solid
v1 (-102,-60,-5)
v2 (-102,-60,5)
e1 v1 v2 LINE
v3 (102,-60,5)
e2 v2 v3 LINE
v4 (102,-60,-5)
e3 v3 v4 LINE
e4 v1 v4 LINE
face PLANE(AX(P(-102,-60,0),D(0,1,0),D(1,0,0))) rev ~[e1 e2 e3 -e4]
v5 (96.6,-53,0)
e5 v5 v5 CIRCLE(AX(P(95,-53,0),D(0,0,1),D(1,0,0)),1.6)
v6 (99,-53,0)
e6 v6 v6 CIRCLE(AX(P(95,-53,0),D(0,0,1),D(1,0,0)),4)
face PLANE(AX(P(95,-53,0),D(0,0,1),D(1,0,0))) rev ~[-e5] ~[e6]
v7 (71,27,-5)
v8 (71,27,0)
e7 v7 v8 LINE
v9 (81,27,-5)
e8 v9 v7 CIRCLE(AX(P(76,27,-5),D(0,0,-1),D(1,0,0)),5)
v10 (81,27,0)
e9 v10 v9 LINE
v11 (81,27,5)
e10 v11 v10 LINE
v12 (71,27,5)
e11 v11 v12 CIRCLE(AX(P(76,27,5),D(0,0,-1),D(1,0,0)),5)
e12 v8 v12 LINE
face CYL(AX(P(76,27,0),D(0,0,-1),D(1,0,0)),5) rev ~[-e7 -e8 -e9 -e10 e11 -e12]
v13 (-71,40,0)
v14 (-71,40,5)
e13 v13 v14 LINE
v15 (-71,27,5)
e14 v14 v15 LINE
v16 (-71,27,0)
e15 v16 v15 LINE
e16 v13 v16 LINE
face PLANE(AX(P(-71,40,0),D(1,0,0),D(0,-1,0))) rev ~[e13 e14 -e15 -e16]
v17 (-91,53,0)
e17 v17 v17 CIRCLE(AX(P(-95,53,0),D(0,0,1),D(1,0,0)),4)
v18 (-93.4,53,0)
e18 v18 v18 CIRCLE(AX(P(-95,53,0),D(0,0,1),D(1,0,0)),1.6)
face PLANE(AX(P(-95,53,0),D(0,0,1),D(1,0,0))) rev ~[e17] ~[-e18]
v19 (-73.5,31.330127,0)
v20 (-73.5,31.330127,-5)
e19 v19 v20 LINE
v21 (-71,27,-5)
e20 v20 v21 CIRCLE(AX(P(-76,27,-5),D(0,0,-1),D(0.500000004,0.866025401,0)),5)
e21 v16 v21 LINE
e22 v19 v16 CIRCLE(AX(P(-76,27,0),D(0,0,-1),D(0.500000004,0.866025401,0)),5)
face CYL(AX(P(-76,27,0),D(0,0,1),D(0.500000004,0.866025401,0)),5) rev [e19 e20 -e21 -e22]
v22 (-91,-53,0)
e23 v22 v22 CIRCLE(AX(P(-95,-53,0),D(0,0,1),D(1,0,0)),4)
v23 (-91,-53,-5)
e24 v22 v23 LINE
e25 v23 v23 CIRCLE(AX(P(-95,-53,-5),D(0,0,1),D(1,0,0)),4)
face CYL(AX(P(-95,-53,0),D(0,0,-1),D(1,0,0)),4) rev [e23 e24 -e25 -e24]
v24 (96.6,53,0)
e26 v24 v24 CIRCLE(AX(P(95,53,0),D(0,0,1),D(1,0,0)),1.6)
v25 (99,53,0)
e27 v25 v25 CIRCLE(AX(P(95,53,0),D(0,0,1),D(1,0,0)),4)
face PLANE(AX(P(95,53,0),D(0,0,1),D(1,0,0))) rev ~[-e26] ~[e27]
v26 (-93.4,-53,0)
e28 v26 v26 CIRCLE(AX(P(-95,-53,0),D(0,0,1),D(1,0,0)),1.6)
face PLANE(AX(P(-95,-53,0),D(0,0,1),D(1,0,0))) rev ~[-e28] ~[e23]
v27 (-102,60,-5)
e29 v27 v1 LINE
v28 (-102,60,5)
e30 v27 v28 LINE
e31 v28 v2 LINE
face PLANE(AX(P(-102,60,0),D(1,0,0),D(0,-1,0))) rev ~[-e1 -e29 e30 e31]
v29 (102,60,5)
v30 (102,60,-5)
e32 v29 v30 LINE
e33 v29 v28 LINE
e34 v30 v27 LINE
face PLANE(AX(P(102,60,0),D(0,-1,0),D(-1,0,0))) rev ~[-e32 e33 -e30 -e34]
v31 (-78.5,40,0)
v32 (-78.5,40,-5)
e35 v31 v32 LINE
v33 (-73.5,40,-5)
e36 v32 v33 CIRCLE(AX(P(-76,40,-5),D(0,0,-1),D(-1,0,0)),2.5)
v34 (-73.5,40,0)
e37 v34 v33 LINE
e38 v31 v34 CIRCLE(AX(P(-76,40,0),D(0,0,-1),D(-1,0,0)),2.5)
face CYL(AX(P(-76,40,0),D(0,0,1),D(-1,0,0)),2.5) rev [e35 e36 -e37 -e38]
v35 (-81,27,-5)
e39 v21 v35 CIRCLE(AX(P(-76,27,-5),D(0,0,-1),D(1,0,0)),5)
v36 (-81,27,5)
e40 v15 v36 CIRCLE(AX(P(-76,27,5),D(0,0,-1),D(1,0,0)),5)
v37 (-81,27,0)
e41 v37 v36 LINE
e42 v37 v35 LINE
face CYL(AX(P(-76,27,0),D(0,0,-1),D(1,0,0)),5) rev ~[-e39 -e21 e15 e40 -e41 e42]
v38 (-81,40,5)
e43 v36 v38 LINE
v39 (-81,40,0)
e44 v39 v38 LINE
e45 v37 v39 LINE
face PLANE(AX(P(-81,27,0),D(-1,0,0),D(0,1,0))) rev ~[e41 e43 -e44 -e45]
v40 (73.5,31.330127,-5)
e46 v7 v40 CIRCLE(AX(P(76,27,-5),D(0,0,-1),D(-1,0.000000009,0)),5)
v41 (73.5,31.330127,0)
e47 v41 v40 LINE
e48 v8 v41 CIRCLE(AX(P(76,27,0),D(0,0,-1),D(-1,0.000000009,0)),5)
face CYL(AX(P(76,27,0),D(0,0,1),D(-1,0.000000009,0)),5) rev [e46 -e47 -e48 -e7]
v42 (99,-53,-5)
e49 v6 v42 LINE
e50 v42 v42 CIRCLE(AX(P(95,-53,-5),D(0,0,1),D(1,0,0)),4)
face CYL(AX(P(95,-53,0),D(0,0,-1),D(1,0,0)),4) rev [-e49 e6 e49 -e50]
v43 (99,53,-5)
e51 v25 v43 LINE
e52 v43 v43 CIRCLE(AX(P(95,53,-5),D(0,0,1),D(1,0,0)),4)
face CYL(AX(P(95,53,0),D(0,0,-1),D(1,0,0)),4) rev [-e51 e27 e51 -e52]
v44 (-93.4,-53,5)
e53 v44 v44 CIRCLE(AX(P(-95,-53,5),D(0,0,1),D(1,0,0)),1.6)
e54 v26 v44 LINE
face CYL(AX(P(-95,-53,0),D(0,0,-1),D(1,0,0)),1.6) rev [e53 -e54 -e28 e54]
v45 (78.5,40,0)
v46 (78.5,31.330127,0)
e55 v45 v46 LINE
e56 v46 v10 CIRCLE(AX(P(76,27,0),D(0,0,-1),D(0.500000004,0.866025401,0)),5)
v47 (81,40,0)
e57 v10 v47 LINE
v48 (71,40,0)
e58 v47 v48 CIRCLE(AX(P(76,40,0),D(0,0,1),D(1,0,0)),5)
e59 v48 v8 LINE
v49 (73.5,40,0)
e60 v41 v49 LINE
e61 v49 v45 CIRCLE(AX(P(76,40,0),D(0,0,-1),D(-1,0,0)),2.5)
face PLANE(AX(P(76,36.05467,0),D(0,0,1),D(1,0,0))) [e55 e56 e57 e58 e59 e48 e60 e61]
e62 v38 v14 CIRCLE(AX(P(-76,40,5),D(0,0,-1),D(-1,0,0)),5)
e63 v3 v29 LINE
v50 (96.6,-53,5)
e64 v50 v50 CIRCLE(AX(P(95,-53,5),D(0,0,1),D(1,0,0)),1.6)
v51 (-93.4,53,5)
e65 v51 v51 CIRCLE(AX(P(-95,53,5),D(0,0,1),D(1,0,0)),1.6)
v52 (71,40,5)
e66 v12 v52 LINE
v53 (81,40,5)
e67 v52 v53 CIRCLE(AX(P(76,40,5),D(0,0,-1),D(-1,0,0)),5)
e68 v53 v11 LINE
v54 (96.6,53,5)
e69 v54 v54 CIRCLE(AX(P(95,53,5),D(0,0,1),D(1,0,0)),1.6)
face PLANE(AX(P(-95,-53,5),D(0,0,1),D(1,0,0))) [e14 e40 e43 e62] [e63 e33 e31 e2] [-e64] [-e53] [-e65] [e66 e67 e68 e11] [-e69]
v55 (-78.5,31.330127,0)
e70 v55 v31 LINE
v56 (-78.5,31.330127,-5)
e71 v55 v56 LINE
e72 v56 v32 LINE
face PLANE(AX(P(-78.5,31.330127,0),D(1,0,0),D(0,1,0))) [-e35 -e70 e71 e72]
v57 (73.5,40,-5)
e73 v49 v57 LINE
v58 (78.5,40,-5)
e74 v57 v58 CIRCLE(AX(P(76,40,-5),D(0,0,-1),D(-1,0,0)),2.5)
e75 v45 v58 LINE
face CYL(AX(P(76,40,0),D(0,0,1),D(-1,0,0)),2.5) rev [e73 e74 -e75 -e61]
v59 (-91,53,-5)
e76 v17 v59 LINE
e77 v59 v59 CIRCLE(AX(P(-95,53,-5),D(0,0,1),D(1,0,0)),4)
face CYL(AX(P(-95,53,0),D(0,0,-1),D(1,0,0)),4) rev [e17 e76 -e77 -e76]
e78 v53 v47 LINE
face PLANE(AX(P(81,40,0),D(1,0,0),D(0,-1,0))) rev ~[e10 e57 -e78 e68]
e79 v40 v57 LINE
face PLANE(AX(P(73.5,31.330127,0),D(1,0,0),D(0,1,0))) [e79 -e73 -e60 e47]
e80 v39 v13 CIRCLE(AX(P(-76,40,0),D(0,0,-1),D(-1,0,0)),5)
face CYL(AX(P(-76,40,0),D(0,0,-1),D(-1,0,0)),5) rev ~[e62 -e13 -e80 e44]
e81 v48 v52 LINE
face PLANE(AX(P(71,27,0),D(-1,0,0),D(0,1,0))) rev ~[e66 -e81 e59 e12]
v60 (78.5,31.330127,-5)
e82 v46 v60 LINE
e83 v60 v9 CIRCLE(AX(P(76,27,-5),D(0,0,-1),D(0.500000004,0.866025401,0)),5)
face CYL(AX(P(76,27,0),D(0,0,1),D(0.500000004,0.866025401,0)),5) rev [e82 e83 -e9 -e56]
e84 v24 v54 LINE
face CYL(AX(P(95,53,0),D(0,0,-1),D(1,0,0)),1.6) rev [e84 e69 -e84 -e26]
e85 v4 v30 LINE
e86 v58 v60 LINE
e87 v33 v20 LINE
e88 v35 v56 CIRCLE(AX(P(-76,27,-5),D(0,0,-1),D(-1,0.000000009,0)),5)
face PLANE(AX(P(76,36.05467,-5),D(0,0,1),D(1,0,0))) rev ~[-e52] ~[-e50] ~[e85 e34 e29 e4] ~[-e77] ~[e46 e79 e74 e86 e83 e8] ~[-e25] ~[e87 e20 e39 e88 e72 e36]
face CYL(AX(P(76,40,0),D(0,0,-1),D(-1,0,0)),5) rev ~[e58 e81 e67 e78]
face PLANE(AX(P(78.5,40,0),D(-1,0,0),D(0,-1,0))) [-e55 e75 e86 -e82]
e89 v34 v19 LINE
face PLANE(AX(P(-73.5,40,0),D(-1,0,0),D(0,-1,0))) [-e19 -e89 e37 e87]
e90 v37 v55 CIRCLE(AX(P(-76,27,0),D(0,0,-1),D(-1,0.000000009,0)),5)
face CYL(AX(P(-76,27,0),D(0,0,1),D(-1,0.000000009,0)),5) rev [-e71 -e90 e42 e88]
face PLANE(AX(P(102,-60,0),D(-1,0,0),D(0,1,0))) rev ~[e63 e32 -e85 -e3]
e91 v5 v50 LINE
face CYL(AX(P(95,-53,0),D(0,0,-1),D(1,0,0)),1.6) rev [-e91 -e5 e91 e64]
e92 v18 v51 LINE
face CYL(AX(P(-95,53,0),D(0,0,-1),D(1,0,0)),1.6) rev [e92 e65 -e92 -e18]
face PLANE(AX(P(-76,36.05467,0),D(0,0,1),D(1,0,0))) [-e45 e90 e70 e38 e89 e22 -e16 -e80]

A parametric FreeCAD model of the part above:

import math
import FreeCAD as App
import Part
import Sketcher
Q = App.Units.Quantity

doc = App.newDocument("Part")
body = doc.addObject("PartDesign::Body", "Body")

sketch1 = doc.addObject("Sketcher::SketchObject", "Sketch")
body.addObject(sketch1)
sketch1.AttachmentSupport = (doc.XY_Plane, [""])
sketch1.MapMode = "FlatFace"
sketch1.addGeometry([
    Part.LineSegment(App.Vector(102, 60, 0), App.Vector(-102, 60, 0)),
    Part.LineSegment(App.Vector(-102, 60, 0), App.Vector(-102, -60, 0)),
    Part.LineSegment(App.Vector(-102, -60, 0), App.Vector(102, -60, 0)),
    Part.LineSegment(App.Vector(102, -60, 0), App.Vector(102, 60, 0)),
    Part.Circle(App.Vector(-95, -53, 0), App.Vector(0, 0, 1), 4),
    Part.Circle(App.Vector(95, -53, 0), App.Vector(0, 0, 1), 4),
    Part.LineSegment(App.Vector(-81, 27, 0), App.Vector(-81, 40, 0)),
    Part.ArcOfCircle(Part.Circle(App.Vector(-76, 40, 0), App.Vector(0, 0, 1), 5), math.radians(0), math.radians(180)),
    Part.LineSegment(App.Vector(-71, 40, 0), App.Vector(-71, 27, 0)),
    Part.ArcOfCircle(Part.Circle(App.Vector(-76, 27, 0), App.Vector(0, 0, 1), 5), math.radians(180), math.radians(360)),
    Part.Circle(App.Vector(-95, 53, 0), App.Vector(0, 0, 1), 4),
    Part.ArcOfCircle(Part.Circle(App.Vector(76, 27, 0), App.Vector(0, 0, 1), 5), math.radians(180), math.radians(360)),
    Part.LineSegment(App.Vector(71, 27, 0), App.Vector(71, 40, 0)),
    Part.ArcOfCircle(Part.Circle(App.Vector(76, 40, 0), App.Vector(0, 0, 1), 5), math.radians(0), math.radians(180)),
    Part.LineSegment(App.Vector(81, 40, 0), App.Vector(81, 27, 0)),
    Part.Circle(App.Vector(95, 53, 0), App.Vector(0, 0, 1), 4),
], False)
sketch1.addConstraint([
    Sketcher.Constraint("Coincident", 0, 2, 1, 1),
    Sketcher.Constraint("Coincident", 1, 2, 2, 1),
    Sketcher.Constraint("Coincident", 2, 2, 3, 1),
    Sketcher.Constraint("Coincident", 3, 2, 0, 1),
    Sketcher.Constraint("Tangent", 6, 2, 7, 2),
    Sketcher.Constraint("Tangent", 7, 1, 8, 1),
    Sketcher.Constraint("Tangent", 8, 2, 9, 2),
    Sketcher.Constraint("Tangent", 9, 1, 6, 1),
    Sketcher.Constraint("Tangent", 11, 1, 12, 1),
    Sketcher.Constraint("Tangent", 12, 2, 13, 2),
    Sketcher.Constraint("Tangent", 13, 1, 14, 1),
    Sketcher.Constraint("Tangent", 14, 2, 11, 2),
    Sketcher.Constraint("Horizontal", 0),
    Sketcher.Constraint("Vertical", 1),
    Sketcher.Constraint("Horizontal", 2),
    Sketcher.Constraint("Vertical", 3),
    Sketcher.Constraint("Vertical", 6),
    Sketcher.Constraint("Vertical", 8),
    Sketcher.Constraint("Vertical", 12),
    Sketcher.Constraint("Vertical", 14),
    Sketcher.Constraint("Equal", 4, 5),
    Sketcher.Constraint("Equal", 5, 10),
    Sketcher.Constraint("Equal", 9, 11),
    Sketcher.Constraint("Equal", 10, 15),
    Sketcher.Constraint("Symmetric", 5, 3, 10, 3, -1, 1),
    Sketcher.Constraint("Symmetric", 4, 3, 15, 3, -1, 1),
    Sketcher.Constraint("Symmetric", 0, 2, 2, 2, -1, 1),
    Sketcher.Constraint("Symmetric", 4, 3, 5, 3, -2),
    Sketcher.Constraint("Symmetric", 9, 3, 11, 3, -2),
    Sketcher.Constraint("Horizontal", 7, 3, 13, 3),
    Sketcher.Constraint("Diameter", 4, Q("8 mm")),
    Sketcher.Constraint("Radius", 7, Q("5 mm")),
    Sketcher.Constraint("DistanceX", 0, 2, 0, 1, Q("204 mm")),
    Sketcher.Constraint("DistanceY", 1, 2, 1, 1, Q("120 mm")),
    Sketcher.Constraint("DistanceY", 6, 1, 6, 2, Q("13 mm")),
    Sketcher.Constraint("DistanceX", 4, 3, -1, 1, Q("95 mm")),
    Sketcher.Constraint("DistanceY", 4, 3, -1, 1, Q("53 mm")),
    Sketcher.Constraint("DistanceX", 7, 3, -1, 1, Q("76 mm")),
    Sketcher.Constraint("DistanceY", -1, 1, 7, 3, Q("40 mm")),
])
pad1 = doc.addObject("PartDesign::Pad", "Pad")
body.addObject(pad1)
pad1.Profile = sketch1
pad1.Length = 5
pad1.Reversed = True

sketch2 = doc.addObject("Sketcher::SketchObject", "Sketch001")
body.addObject(sketch2)
sketch2.AttachmentSupport = (doc.XY_Plane, [""])
sketch2.MapMode = "FlatFace"
sketch2.addGeometry([
    Part.LineSegment(App.Vector(-71, 27, 0), App.Vector(-71, 40, 0)),
    Part.ArcOfCircle(Part.Circle(App.Vector(-76, 40, 0), App.Vector(0, 0, 1), 5), math.radians(0), math.radians(180)),
    Part.LineSegment(App.Vector(-81, 40, 0), App.Vector(-81, 27, 0)),
    Part.ArcOfCircle(Part.Circle(App.Vector(-76, 27, 0), App.Vector(0, 0, 1), 5), math.radians(120), math.radians(180)),
    Part.LineSegment(App.Vector(-78.5, 31.3, 0), App.Vector(-78.5, 40, 0)),
    Part.ArcOfCircle(Part.Circle(App.Vector(-76, 40, 0), App.Vector(0, 0, 1), 2.5), math.radians(0), math.radians(180)),
    Part.LineSegment(App.Vector(-73.5, 40, 0), App.Vector(-73.5, 31.3, 0)),
    Part.ArcOfCircle(Part.Circle(App.Vector(-76, 27, 0), App.Vector(0, 0, 1), 5), math.radians(0), math.radians(60)),
], False)
sketch2.addConstraint([
    Sketcher.Constraint("Tangent", 0, 2, 1, 1),
    Sketcher.Constraint("Tangent", 1, 2, 2, 1),
    Sketcher.Constraint("Tangent", 2, 2, 3, 2),
    Sketcher.Constraint("Coincident", 3, 1, 4, 1),
    Sketcher.Constraint("Tangent", 4, 2, 5, 2),
    Sketcher.Constraint("Tangent", 5, 1, 6, 1),
    Sketcher.Constraint("Coincident", 6, 2, 7, 2),
    Sketcher.Constraint("Tangent", 7, 1, 0, 1),
    Sketcher.Constraint("Vertical", 0),
    Sketcher.Constraint("Vertical", 2),
    Sketcher.Constraint("Vertical", 4),
    Sketcher.Constraint("Vertical", 6),
    Sketcher.Constraint("Coincident", 5, 3, 1, 3),
    Sketcher.Constraint("Coincident", 7, 3, 3, 3),
    Sketcher.Constraint("Equal", 1, 3),
    Sketcher.Constraint("Radius", 1, Q("5 mm")),
    Sketcher.Constraint("Radius", 5, Q("2.5 mm")),
    Sketcher.Constraint("DistanceY", 0, 1, 0, 2, Q("13 mm")),
    Sketcher.Constraint("DistanceX", 1, 3, -1, 1, Q("76 mm")),
    Sketcher.Constraint("DistanceY", -1, 1, 1, 3, Q("40 mm")),
])
pad2 = doc.addObject("PartDesign::Pad", "Pad001")
body.addObject(pad2)
pad2.Profile = sketch2
pad2.Length = 5
pad2.Reversed = True

sketch3 = doc.addObject("Sketcher::SketchObject", "Sketch002")
body.addObject(sketch3)
sketch3.AttachmentSupport = (doc.XY_Plane, [""])
sketch3.MapMode = "FlatFace"
sketch3.addGeometry([
    Part.LineSegment(App.Vector(102, 60, 0), App.Vector(-102, 60, 0)),
    Part.LineSegment(App.Vector(-102, 60, 0), App.Vector(-102, -60, 0)),
    Part.LineSegment(App.Vector(-102, -60, 0), App.Vector(102, -60, 0)),
    Part.LineSegment(App.Vector(102, -60, 0), App.Vector(102, 60, 0)),
    Part.Circle(App.Vector(-95, -53, 0), App.Vector(0, 0, 1), 4),
    Part.Circle(App.Vector(95, -53, 0), App.Vector(0, 0, 1), 4),
    Part.LineSegment(App.Vector(-81, 27, 0), App.Vector(-81, 40, 0)),
    Part.ArcOfCircle(Part.Circle(App.Vector(-76, 40, 0), App.Vector(0, 0, 1), 5), math.radians(0), math.radians(180)),
    Part.LineSegment(App.Vector(-71, 40, 0), App.Vector(-71, 27, 0)),
    Part.ArcOfCircle(Part.Circle(App.Vector(-76, 27, 0), App.Vector(0, 0, 1), 5), math.radians(180), math.radians(360)),
    Part.Circle(App.Vector(-95, 53, 0), App.Vector(0, 0, 1), 4),
    Part.ArcOfCircle(Part.Circle(App.Vector(76, 27, 0), App.Vector(0, 0, 1), 5), math.radians(180), math.radians(360)),
    Part.LineSegment(App.Vector(71, 27, 0), App.Vector(71, 40, 0)),
    Part.ArcOfCircle(Part.Circle(App.Vector(76, 40, 0), App.Vector(0, 0, 1), 5), math.radians(0), math.radians(180)),
    Part.LineSegment(App.Vector(81, 40, 0), App.Vector(81, 27, 0)),
    Part.Circle(App.Vector(95, 53, 0), App.Vector(0, 0, 1), 4),
], False)
sketch3.addConstraint([
    Sketcher.Constraint("Coincident", 0, 2, 1, 1),
    Sketcher.Constraint("Coincident", 1, 2, 2, 1),
    Sketcher.Constraint("Coincident", 2, 2, 3, 1),
    Sketcher.Constraint("Coincident", 3, 2, 0, 1),
    Sketcher.Constraint("Tangent", 6, 2, 7, 2),
    Sketcher.Constraint("Tangent", 7, 1, 8, 1),
    Sketcher.Constraint("Tangent", 8, 2, 9, 2),
    Sketcher.Constraint("Tangent", 9, 1, 6, 1),
    Sketcher.Constraint("Tangent", 11, 1, 12, 1),
    Sketcher.Constraint("Tangent", 12, 2, 13, 2),
    Sketcher.Constraint("Tangent", 13, 1, 14, 1),
    Sketcher.Constraint("Tangent", 14, 2, 11, 2),
    Sketcher.Constraint("Horizontal", 0),
    Sketcher.Constraint("Vertical", 1),
    Sketcher.Constraint("Horizontal", 2),
    Sketcher.Constraint("Vertical", 3),
    Sketcher.Constraint("Vertical", 6),
    Sketcher.Constraint("Vertical", 8),
    Sketcher.Constraint("Vertical", 12),
    Sketcher.Constraint("Vertical", 14),
    Sketcher.Constraint("Equal", 4, 5),
    Sketcher.Constraint("Equal", 5, 10),
    Sketcher.Constraint("Equal", 9, 11),
    Sketcher.Constraint("Equal", 10, 15),
    Sketcher.Constraint("Symmetric", 5, 3, 10, 3, -1, 1),
    Sketcher.Constraint("Symmetric", 4, 3, 15, 3, -1, 1),
    Sketcher.Constraint("Symmetric", 0, 2, 2, 2, -1, 1),
    Sketcher.Constraint("Symmetric", 4, 3, 5, 3, -2),
    Sketcher.Constraint("Symmetric", 9, 3, 11, 3, -2),
    Sketcher.Constraint("Horizontal", 7, 3, 13, 3),
    Sketcher.Constraint("Diameter", 4, Q("8 mm")),
    Sketcher.Constraint("Radius", 7, Q("5 mm")),
    Sketcher.Constraint("DistanceX", 0, 2, 0, 1, Q("204 mm")),
    Sketcher.Constraint("DistanceY", 1, 2, 1, 1, Q("120 mm")),
    Sketcher.Constraint("DistanceY", 6, 1, 6, 2, Q("13 mm")),
    Sketcher.Constraint("DistanceX", 4, 3, -1, 1, Q("95 mm")),
    Sketcher.Constraint("DistanceY", 4, 3, -1, 1, Q("53 mm")),
    Sketcher.Constraint("DistanceX", 7, 3, -1, 1, Q("76 mm")),
    Sketcher.Constraint("DistanceY", -1, 1, 7, 3, Q("40 mm")),
])
pad3 = doc.addObject("PartDesign::Pad", "Pad002")
body.addObject(pad3)
pad3.Profile = sketch3
pad3.Length = 5

sketch4 = doc.addObject("Sketcher::SketchObject", "Sketch003")
body.addObject(sketch4)
sketch4.AttachmentSupport = (doc.XY_Plane, [""])
sketch4.MapMode = "FlatFace"
sketch4.addGeometry([
    Part.Circle(App.Vector(95, -53, 0), App.Vector(0, 0, 1), 4),
    Part.Circle(App.Vector(95, -53, 0), App.Vector(0, 0, 1), 1.6),
], False)
sketch4.addConstraint([
    Sketcher.Constraint("Coincident", 1, 3, 0, 3),
    Sketcher.Constraint("Diameter", 0, Q("8 mm")),
    Sketcher.Constraint("Diameter", 1, Q("3.2 mm")),
    Sketcher.Constraint("DistanceX", -1, 1, 0, 3, Q("95 mm")),
    Sketcher.Constraint("DistanceY", 0, 3, -1, 1, Q("53 mm")),
])
pad4 = doc.addObject("PartDesign::Pad", "Pad003")
body.addObject(pad4)
pad4.Profile = sketch4
pad4.Length = 5

sketch5 = doc.addObject("Sketcher::SketchObject", "Sketch004")
body.addObject(sketch5)
sketch5.AttachmentSupport = (doc.XY_Plane, [""])
sketch5.MapMode = "FlatFace"
sketch5.addGeometry([
    Part.ArcOfCircle(Part.Circle(App.Vector(76, 40, 0), App.Vector(0, 0, 1), 5), math.radians(0), math.radians(180)),
    Part.LineSegment(App.Vector(71, 40, 0), App.Vector(71, 27, 0)),
    Part.ArcOfCircle(Part.Circle(App.Vector(76, 27, 0), App.Vector(0, 0, 1), 5), math.radians(120), math.radians(180)),
    Part.LineSegment(App.Vector(73.5, 31.3, 0), App.Vector(73.5, 40, 0)),
    Part.ArcOfCircle(Part.Circle(App.Vector(76, 40, 0), App.Vector(0, 0, 1), 2.5), math.radians(0), math.radians(180)),
    Part.LineSegment(App.Vector(78.5, 40, 0), App.Vector(78.5, 31.3, 0)),
    Part.ArcOfCircle(Part.Circle(App.Vector(76, 27, 0), App.Vector(0, 0, 1), 5), math.radians(0), math.radians(60)),
    Part.LineSegment(App.Vector(81, 27, 0), App.Vector(81, 40, 0)),
], False)
sketch5.addConstraint([
    Sketcher.Constraint("Tangent", 0, 2, 1, 1),
    Sketcher.Constraint("Tangent", 1, 2, 2, 2),
    Sketcher.Constraint("Coincident", 2, 1, 3, 1),
    Sketcher.Constraint("Tangent", 3, 2, 4, 2),
    Sketcher.Constraint("Tangent", 4, 1, 5, 1),
    Sketcher.Constraint("Coincident", 5, 2, 6, 2),
    Sketcher.Constraint("Tangent", 6, 1, 7, 1),
    Sketcher.Constraint("Tangent", 7, 2, 0, 1),
    Sketcher.Constraint("Vertical", 1),
    Sketcher.Constraint("Vertical", 3),
    Sketcher.Constraint("Vertical", 5),
    Sketcher.Constraint("Vertical", 7),
    Sketcher.Constraint("Coincident", 4, 3, 0, 3),
    Sketcher.Constraint("Coincident", 6, 3, 2, 3),
    Sketcher.Constraint("Equal", 0, 2),
    Sketcher.Constraint("Radius", 0, Q("5 mm")),
    Sketcher.Constraint("Radius", 4, Q("2.5 mm")),
    Sketcher.Constraint("DistanceY", 1, 2, 1, 1, Q("13 mm")),
    Sketcher.Constraint("DistanceX", -1, 1, 0, 3, Q("76 mm")),
    Sketcher.Constraint("DistanceY", -1, 1, 0, 3, Q("40 mm")),
])
pad5 = doc.addObject("PartDesign::Pad", "Pad004")
body.addObject(pad5)
pad5.Profile = sketch5
pad5.Length = 5
pad5.Reversed = True

sketch6 = doc.addObject("Sketcher::SketchObject", "Sketch005")
body.addObject(sketch6)
sketch6.AttachmentSupport = (doc.XY_Plane, [""])
sketch6.MapMode = "FlatFace"
sketch6.addGeometry([
    Part.Circle(App.Vector(95, 53, 0), App.Vector(0, 0, 1), 4),
    Part.Circle(App.Vector(95, 53, 0), App.Vector(0, 0, 1), 1.6),
], False)
sketch6.addConstraint([
    Sketcher.Constraint("Coincident", 1, 3, 0, 3),
    Sketcher.Constraint("Diameter", 0, Q("8 mm")),
    Sketcher.Constraint("Diameter", 1, Q("3.2 mm")),
    Sketcher.Constraint("DistanceX", -1, 1, 0, 3, Q("95 mm")),
    Sketcher.Constraint("DistanceY", -1, 1, 0, 3, Q("53 mm")),
])
pad6 = doc.addObject("PartDesign::Pad", "Pad005")
body.addObject(pad6)
pad6.Profile = sketch6
pad6.Length = 5

sketch7 = doc.addObject("Sketcher::SketchObject", "Sketch006")
body.addObject(sketch7)
sketch7.AttachmentSupport = (doc.XY_Plane, [""])
sketch7.MapMode = "FlatFace"
sketch7.addGeometry([
    Part.Circle(App.Vector(-95, 53, 0), App.Vector(0, 0, 1), 4),
    Part.Circle(App.Vector(-95, 53, 0), App.Vector(0, 0, 1), 1.6),
], False)
sketch7.addConstraint([
    Sketcher.Constraint("Coincident", 1, 3, 0, 3),
    Sketcher.Constraint("Diameter", 0, Q("8 mm")),
    Sketcher.Constraint("Diameter", 1, Q("3.2 mm")),
    Sketcher.Constraint("DistanceX", 0, 3, -1, 1, Q("95 mm")),
    Sketcher.Constraint("DistanceY", -1, 1, 0, 3, Q("53 mm")),
])
pad7 = doc.addObject("PartDesign::Pad", "Pad006")
body.addObject(pad7)
pad7.Profile = sketch7
pad7.Length = 5

sketch8 = doc.addObject("Sketcher::SketchObject", "Sketch007")
body.addObject(sketch8)
sketch8.AttachmentSupport = (doc.XY_Plane, [""])
sketch8.MapMode = "FlatFace"
sketch8.addGeometry([
    Part.Circle(App.Vector(-95, -53, 0), App.Vector(0, 0, 1), 4),
    Part.Circle(App.Vector(-95, -53, 0), App.Vector(0, 0, 1), 1.6),
], False)
sketch8.addConstraint([
    Sketcher.Constraint("Coincident", 1, 3, 0, 3),
    Sketcher.Constraint("Diameter", 0, Q("8 mm")),
    Sketcher.Constraint("Diameter", 1, Q("3.2 mm")),
    Sketcher.Constraint("DistanceX", 0, 3, -1, 1, Q("95 mm")),
    Sketcher.Constraint("DistanceY", 0, 3, -1, 1, Q("53 mm")),
])
pad8 = doc.addObject("PartDesign::Pad", "Pad007")
body.addObject(pad8)
pad8.Profile = sketch8
pad8.Length = 5

doc.recompute()
